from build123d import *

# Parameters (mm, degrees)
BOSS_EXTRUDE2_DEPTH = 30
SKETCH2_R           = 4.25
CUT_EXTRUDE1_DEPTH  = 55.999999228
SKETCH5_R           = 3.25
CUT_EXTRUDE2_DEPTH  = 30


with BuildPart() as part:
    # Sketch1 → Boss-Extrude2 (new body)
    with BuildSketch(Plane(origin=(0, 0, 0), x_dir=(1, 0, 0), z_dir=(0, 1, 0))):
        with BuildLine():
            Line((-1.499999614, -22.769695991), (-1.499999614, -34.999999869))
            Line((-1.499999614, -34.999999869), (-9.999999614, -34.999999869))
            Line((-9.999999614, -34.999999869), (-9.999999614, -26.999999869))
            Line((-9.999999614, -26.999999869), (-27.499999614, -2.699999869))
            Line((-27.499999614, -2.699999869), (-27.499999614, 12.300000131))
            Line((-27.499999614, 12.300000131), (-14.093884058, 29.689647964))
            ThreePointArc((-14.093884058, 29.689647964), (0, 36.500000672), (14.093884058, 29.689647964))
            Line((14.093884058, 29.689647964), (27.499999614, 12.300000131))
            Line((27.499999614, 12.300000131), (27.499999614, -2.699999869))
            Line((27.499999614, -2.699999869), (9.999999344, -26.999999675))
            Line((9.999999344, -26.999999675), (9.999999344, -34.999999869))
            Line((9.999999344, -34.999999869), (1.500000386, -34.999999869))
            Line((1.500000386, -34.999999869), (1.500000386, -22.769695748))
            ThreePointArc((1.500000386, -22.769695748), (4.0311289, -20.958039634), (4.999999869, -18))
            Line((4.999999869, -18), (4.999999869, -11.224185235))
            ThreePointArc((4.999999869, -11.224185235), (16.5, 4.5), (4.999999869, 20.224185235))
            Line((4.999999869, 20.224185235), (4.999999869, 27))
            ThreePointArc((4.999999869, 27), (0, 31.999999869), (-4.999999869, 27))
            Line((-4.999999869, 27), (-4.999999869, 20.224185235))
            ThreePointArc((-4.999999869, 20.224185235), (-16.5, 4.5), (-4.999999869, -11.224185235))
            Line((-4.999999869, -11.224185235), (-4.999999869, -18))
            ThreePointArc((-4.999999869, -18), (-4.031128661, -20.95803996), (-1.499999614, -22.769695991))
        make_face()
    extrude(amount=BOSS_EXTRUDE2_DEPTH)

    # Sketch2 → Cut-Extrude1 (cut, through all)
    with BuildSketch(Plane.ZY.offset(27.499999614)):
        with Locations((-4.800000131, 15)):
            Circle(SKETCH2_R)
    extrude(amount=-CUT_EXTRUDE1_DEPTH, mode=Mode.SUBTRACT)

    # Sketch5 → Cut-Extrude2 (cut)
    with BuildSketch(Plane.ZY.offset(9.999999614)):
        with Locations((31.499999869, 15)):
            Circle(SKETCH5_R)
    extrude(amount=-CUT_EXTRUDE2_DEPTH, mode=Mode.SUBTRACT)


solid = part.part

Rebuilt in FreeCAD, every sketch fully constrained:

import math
import FreeCAD as App
import Part
import Sketcher
from FreeCAD import Vector
Q = App.Units.Quantity

doc = App.newDocument("Part")
body = doc.addObject("PartDesign::Body", "Body")

# Sketch on XZ plane
sketch1 = body.newObject("Sketcher::SketchObject", "Sketch")
sketch1.AttachmentSupport = (doc.getObject("XZ_Plane"), [""])
sketch1.MapMode = "FlatFace"
sketch1.addGeometry(Part.LineSegment(Vector(-1.5, 35, 0), Vector(-1.5, 22.8, 0)), False)
sketch1.addGeometry(Part.ArcOfCircle(Part.Circle(Vector(0, 18, 0), Vector(0, 0, 1), 5), math.radians(107), math.radians(180)), False)
sketch1.addGeometry(Part.LineSegment(Vector(-5, 18, 0), Vector(-5, 11.2, 0)), False)
sketch1.addGeometry(Part.ArcOfCircle(Part.Circle(Vector(0, -4.5, 0), Vector(0, 0, 1), 16.5), math.radians(108), math.radians(252)), False)
sketch1.addGeometry(Part.LineSegment(Vector(-5, -20.2, 0), Vector(-5, -27, 0)), False)
sketch1.addGeometry(Part.ArcOfCircle(Part.Circle(Vector(0, -27, 0), Vector(0, 0, 1), 5), math.radians(180), math.radians(360)), False)
sketch1.addGeometry(Part.LineSegment(Vector(5, -27, 0), Vector(5, -20.2, 0)), False)
sketch1.addGeometry(Part.ArcOfCircle(Part.Circle(Vector(0, -4.5, 0), Vector(0, 0, 1), 16.5), math.radians(-72), math.radians(72)), False)
sketch1.addGeometry(Part.LineSegment(Vector(5, 11.2, 0), Vector(5, 18, 0)), False)
sketch1.addGeometry(Part.ArcOfCircle(Part.Circle(Vector(0, 18, 0), Vector(0, 0, 1), 5), math.radians(0), math.radians(73)), False)
sketch1.addGeometry(Part.LineSegment(Vector(1.5, 22.8, 0), Vector(1.5, 35, 0)), False)
sketch1.addGeometry(Part.LineSegment(Vector(1.5, 35, 0), Vector(10, 35, 0)), False)
sketch1.addGeometry(Part.LineSegment(Vector(10, 35, 0), Vector(10, 27, 0)), False)
sketch1.addGeometry(Part.LineSegment(Vector(10, 27, 0), Vector(27.5, 2.7, 0)), False)
sketch1.addGeometry(Part.LineSegment(Vector(27.5, 2.7, 0), Vector(27.5, -12.3, 0)), False)
sketch1.addGeometry(Part.LineSegment(Vector(27.5, -12.3, 0), Vector(14.1, -29.7, 0)), False)
sketch1.addGeometry(Part.ArcOfCircle(Part.Circle(Vector(0, -18.5, 0), Vector(0, 0, 1), 18), math.radians(-142), math.radians(-38)), False)
sketch1.addGeometry(Part.LineSegment(Vector(-14.1, -29.7, 0), Vector(-27.5, -12.3, 0)), False)
sketch1.addGeometry(Part.LineSegment(Vector(-27.5, -12.3, 0), Vector(-27.5, 2.7, 0)), False)
sketch1.addGeometry(Part.LineSegment(Vector(-27.5, 2.7, 0), Vector(-10, 27, 0)), False)
sketch1.addGeometry(Part.LineSegment(Vector(-10, 27, 0), Vector(-10, 35, 0)), False)
sketch1.addGeometry(Part.LineSegment(Vector(-10, 35, 0), Vector(-1.5, 35, 0)), False)
sketch1.addConstraint(Sketcher.Constraint("Coincident", 0, 2, 1, 1))
sketch1.addConstraint(Sketcher.Constraint("Tangent", 1, 2, 2, 1))
sketch1.addConstraint(Sketcher.Constraint("Coincident", 2, 2, 3, 1))
sketch1.addConstraint(Sketcher.Constraint("Coincident", 3, 2, 4, 1))
sketch1.addConstraint(Sketcher.Constraint("Tangent", 4, 2, 5, 1))
sketch1.addConstraint(Sketcher.Constraint("Tangent", 5, 2, 6, 1))
sketch1.addConstraint(Sketcher.Constraint("Coincident", 6, 2, 7, 1))
sketch1.addConstraint(Sketcher.Constraint("Coincident", 7, 2, 8, 1))
sketch1.addConstraint(Sketcher.Constraint("Tangent", 8, 2, 9, 1))
sketch1.addConstraint(Sketcher.Constraint("Coincident", 9, 2, 10, 1))
sketch1.addConstraint(Sketcher.Constraint("Coincident", 10, 2, 11, 1))
sketch1.addConstraint(Sketcher.Constraint("Coincident", 11, 2, 12, 1))
sketch1.addConstraint(Sketcher.Constraint("Coincident", 12, 2, 13, 1))
sketch1.addConstraint(Sketcher.Constraint("Coincident", 13, 2, 14, 1))
sketch1.addConstraint(Sketcher.Constraint("Coincident", 14, 2, 15, 1))
sketch1.addConstraint(Sketcher.Constraint("Coincident", 15, 2, 16, 2))
sketch1.addConstraint(Sketcher.Constraint("Coincident", 16, 1, 17, 1))
sketch1.addConstraint(Sketcher.Constraint("Coincident", 17, 2, 18, 1))
sketch1.addConstraint(Sketcher.Constraint("Coincident", 18, 2, 19, 1))
sketch1.addConstraint(Sketcher.Constraint("Coincident", 19, 2, 20, 1))
sketch1.addConstraint(Sketcher.Constraint("Coincident", 20, 2, 21, 1))
sketch1.addConstraint(Sketcher.Constraint("Coincident", 21, 2, 0, 1))
sketch1.addConstraint(Sketcher.Constraint("Vertical", 0))
sketch1.addConstraint(Sketcher.Constraint("Vertical", 2))
sketch1.addConstraint(Sketcher.Constraint("Vertical", 4))
sketch1.addConstraint(Sketcher.Constraint("Vertical", 6))
sketch1.addConstraint(Sketcher.Constraint("Vertical", 8))
sketch1.addConstraint(Sketcher.Constraint("Vertical", 10))
sketch1.addConstraint(Sketcher.Constraint("Horizontal", 11))
sketch1.addConstraint(Sketcher.Constraint("Vertical", 12))
sketch1.addConstraint(Sketcher.Constraint("Vertical", 14))
sketch1.addConstraint(Sketcher.Constraint("Vertical", 18))
sketch1.addConstraint(Sketcher.Constraint("Vertical", 20))
sketch1.addConstraint(Sketcher.Constraint("Horizontal", 21))
sketch1.addConstraint(Sketcher.Constraint("Coincident", 7, 3, 3, 3))
sketch1.addConstraint(Sketcher.Constraint("Coincident", 9, 3, 1, 3))
sketch1.addConstraint(Sketcher.Constraint("Equal", 1, 5))
sketch1.addConstraint(Sketcher.Constraint("Equal", 3, 7))
sketch1.addConstraint(Sketcher.Constraint("Equal", 5, 9))
sketch1.addConstraint(Sketcher.Constraint("Symmetric", 3, 2, 6, 2, -2))
sketch1.addConstraint(Sketcher.Constraint("Symmetric", 0, 2, 9, 2, -2))
sketch1.addConstraint(Sketcher.Constraint("Symmetric", 15, 2, 16, 1, -2))
sketch1.addConstraint(Sketcher.Constraint("Symmetric", 14, 2, 17, 2, -2))
sketch1.addConstraint(Sketcher.Constraint("Symmetric", 12, 2, 19, 2, -2))
sketch1.addConstraint(Sketcher.Constraint("Horizontal", 13, 2, 18, 2))
sketch1.addConstraint(Sketcher.Constraint("Horizontal", 11, 2, 20, 2))
sketch1.addConstraint(Sketcher.Constraint("Equal", 2, 4))
sketch1.addConstraint(Sketcher.Constraint("Radius", 1, Q("5 mm")))
sketch1.addConstraint(Sketcher.Constraint("Radius", 3, Q("16.5 mm")))
sketch1.addConstraint(Sketcher.Constraint("DistanceY", 12, 2, 12, 1, Q("8 mm")))
sketch1.addConstraint(Sketcher.Constraint("DistanceY", 14, 2, 14, 1, Q("15 mm")))
sketch1.addConstraint(Sketcher.Constraint("DistanceX", 11, 1, 11, 2, Q("8.499999 mm")))
sketch1.addConstraint(Sketcher.Constraint("DistanceY", -1, 1, 1, 3, Q("18 mm")))
sketch1.addConstraint(Sketcher.Constraint("DistanceY", 5, 3, -1, 1, Q("27 mm")))
sketch1.addConstraint(Sketcher.Constraint("DistanceY", -1, 1, 10, 2, Q("35 mm")))
sketch1.addConstraint(Sketcher.Constraint("DistanceX", -1, 1, 11, 2, Q("9.999999 mm")))
sketch1.addConstraint(Sketcher.Constraint("DistanceX", -1, 1, 13, 2, Q("27.5 mm")))
sketch1.addConstraint(Sketcher.Constraint("DistanceY", -1, 1, 13, 2, Q("2.7 mm")))
sketch1.addConstraint(Sketcher.Constraint("Radius", 16, Q("17.988677 mm")))
sketch1.addConstraint(Sketcher.Constraint("DistanceY", 16, 3, 0, 2, Q("41.28102 mm")))
sketch1.addConstraint(Sketcher.Constraint("Distance", 15, Q("21.957317 mm")))
pad1 = body.newObject("PartDesign::Pad", "Pad")
pad1.Profile = sketch1
pad1.Length = 30
pad1.Reversed = True

# Sketch on YZ plane
sketch2 = body.newObject("Sketcher::SketchObject", "Sketch001")
sketch2.AttachmentSupport = (doc.getObject("YZ_Plane"), [""])
sketch2.MapMode = "FlatFace"
sketch2.AttachmentOffset = App.Placement(Vector(0, 0, -27.5), App.Rotation())
sketch2.addGeometry(Part.Circle(Vector(15, -4.8, 0), Vector(0, 0, 1), 4.2), False)
sketch2.addConstraint(Sketcher.Constraint("Diameter", 0, Q("8.5 mm")))
sketch2.addConstraint(Sketcher.Constraint("DistanceX", -1, 1, 0, 3, Q("15 mm")))
sketch2.addConstraint(Sketcher.Constraint("DistanceY", 0, 3, -1, 1, Q("4.8 mm")))
pocket1 = body.newObject("PartDesign::Pocket", "Pocket")
pocket1.Profile = sketch2
pocket1.Type = "ThroughAll"
pocket1.Reversed = True

# Sketch on YZ plane
sketch3 = body.newObject("Sketcher::SketchObject", "Sketch002")
sketch3.AttachmentSupport = (doc.getObject("YZ_Plane"), [""])
sketch3.MapMode = "FlatFace"
sketch3.AttachmentOffset = App.Placement(Vector(0, 0, -10), App.Rotation())
sketch3.addGeometry(Part.Circle(Vector(15, 31.5, 0), Vector(0, 0, 1), 3.2), False)
sketch3.addConstraint(Sketcher.Constraint("Diameter", 0, Q("6.5 mm")))
sketch3.addConstraint(Sketcher.Constraint("DistanceX", -1, 1, 0, 3, Q("15 mm")))
sketch3.addConstraint(Sketcher.Constraint("DistanceY", -1, 1, 0, 3, Q("31.5 mm")))
pocket2 = body.newObject("PartDesign::Pocket", "Pocket001")
pocket2.Profile = sketch3
pocket2.Length = 30
pocket2.Reversed = True

doc.recompute()
